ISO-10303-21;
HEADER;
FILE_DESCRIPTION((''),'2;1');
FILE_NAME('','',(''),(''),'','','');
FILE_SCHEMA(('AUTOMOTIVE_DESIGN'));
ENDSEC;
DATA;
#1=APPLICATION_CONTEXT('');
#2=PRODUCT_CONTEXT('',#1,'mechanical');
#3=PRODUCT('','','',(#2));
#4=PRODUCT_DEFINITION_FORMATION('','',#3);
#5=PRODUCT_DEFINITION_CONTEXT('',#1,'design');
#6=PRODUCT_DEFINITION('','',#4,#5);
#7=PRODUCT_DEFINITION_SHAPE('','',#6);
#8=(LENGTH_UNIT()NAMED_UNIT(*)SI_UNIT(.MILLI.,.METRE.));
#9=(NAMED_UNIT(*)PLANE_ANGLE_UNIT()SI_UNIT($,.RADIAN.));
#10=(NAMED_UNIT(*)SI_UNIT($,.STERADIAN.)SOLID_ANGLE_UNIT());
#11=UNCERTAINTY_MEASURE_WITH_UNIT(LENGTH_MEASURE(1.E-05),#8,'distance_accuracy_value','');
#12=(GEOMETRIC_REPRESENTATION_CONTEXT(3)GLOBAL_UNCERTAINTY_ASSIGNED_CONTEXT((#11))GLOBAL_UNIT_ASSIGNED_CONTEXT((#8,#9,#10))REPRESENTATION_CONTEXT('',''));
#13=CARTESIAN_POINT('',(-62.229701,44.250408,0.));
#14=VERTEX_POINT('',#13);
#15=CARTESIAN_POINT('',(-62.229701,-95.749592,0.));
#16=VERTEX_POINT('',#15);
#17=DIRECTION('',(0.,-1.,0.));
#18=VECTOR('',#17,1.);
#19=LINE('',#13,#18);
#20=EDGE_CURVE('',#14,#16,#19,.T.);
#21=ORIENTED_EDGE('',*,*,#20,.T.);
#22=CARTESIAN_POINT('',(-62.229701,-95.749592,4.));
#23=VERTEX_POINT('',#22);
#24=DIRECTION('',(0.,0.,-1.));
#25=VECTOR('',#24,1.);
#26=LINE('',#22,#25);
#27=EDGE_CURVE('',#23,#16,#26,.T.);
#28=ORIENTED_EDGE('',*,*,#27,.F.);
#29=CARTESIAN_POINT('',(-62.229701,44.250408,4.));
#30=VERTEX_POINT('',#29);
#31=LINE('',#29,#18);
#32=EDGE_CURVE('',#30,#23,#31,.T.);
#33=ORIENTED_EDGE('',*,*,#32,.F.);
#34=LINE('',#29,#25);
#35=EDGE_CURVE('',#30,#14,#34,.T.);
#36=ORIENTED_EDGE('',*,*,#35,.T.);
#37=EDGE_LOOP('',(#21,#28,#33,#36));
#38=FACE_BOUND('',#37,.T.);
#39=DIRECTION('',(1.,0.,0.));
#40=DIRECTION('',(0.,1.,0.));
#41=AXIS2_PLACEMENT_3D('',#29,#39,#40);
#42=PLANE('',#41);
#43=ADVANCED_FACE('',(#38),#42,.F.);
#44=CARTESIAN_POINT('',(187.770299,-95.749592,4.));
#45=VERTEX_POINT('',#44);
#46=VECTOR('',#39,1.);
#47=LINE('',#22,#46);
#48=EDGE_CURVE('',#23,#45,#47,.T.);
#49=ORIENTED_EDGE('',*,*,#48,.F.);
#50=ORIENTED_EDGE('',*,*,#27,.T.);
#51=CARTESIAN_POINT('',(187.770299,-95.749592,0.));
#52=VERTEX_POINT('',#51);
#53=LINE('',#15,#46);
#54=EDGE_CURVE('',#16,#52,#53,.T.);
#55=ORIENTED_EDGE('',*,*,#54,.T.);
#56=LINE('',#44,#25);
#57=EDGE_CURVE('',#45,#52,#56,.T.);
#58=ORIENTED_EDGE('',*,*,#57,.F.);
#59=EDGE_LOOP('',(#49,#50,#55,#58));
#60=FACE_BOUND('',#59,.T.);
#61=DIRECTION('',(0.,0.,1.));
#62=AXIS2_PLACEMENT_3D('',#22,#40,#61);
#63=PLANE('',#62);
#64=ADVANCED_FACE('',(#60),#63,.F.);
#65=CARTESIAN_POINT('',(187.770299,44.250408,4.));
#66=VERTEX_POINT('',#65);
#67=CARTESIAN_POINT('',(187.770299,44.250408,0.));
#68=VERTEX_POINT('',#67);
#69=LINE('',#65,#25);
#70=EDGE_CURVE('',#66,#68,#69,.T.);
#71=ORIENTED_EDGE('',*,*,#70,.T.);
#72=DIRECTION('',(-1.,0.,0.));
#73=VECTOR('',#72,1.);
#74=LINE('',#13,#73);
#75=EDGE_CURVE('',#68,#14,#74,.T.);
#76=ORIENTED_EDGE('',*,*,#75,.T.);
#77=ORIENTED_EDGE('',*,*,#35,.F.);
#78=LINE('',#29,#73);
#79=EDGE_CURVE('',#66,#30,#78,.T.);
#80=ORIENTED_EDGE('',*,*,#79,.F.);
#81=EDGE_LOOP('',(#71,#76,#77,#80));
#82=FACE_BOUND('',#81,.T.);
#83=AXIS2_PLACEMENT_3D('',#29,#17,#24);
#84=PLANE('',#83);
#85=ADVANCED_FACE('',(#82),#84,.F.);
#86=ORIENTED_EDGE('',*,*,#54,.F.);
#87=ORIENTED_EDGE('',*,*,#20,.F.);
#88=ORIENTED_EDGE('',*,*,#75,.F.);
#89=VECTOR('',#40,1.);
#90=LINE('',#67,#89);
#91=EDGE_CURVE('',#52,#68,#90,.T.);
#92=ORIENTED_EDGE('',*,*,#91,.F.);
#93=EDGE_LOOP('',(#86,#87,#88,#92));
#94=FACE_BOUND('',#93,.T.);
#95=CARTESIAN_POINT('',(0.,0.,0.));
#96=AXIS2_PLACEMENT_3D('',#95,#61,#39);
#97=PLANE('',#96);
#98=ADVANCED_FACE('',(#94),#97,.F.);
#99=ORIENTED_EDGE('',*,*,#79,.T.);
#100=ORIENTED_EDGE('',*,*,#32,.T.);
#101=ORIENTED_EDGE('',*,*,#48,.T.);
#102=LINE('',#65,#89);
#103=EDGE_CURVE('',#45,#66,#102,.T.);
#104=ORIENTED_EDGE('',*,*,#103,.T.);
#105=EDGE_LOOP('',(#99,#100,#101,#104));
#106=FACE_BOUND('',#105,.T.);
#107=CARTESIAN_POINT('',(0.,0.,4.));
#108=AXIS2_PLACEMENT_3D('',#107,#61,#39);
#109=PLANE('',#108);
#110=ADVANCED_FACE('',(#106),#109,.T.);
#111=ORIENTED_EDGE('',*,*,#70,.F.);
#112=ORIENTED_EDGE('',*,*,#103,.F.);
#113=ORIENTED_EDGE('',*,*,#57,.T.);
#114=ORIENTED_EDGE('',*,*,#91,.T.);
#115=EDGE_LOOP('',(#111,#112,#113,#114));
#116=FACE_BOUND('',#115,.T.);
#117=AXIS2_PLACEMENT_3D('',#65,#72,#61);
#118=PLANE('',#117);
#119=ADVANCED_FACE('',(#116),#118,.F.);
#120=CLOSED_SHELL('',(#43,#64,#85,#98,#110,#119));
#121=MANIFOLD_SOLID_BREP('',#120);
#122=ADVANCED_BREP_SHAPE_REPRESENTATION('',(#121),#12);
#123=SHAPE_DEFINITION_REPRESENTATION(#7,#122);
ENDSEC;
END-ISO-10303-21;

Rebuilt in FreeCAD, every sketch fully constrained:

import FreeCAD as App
import Part
import Sketcher
Q = App.Units.Quantity

doc = App.newDocument("Part")
body = doc.addObject("PartDesign::Body", "Body")

sketch1 = body.newObject("Sketcher::SketchObject", "Sketch")
sketch1.AttachmentSupport = (doc.getObject("XY_Plane"), [""])
sketch1.MapMode = "FlatFace"
sketch1.addGeometry([
    Part.LineSegment(App.Vector(-62.229701, 44.250408, 0), App.Vector(-62.229701, -95.749592, 0)),
    Part.LineSegment(App.Vector(-62.229701, -95.749592, 0), App.Vector(187.770299, -95.749592, 0)),
    Part.LineSegment(App.Vector(187.770299, -95.749592, 0), App.Vector(187.770299, 44.250408, 0)),
    Part.LineSegment(App.Vector(187.770299, 44.250408, 0), App.Vector(-62.229701, 44.250408, 0)),
], False)
sketch1.addConstraint([
    Sketcher.Constraint("Coincident", 0, 2, 1, 1),
    Sketcher.Constraint("Coincident", 1, 2, 2, 1),
    Sketcher.Constraint("Coincident", 2, 2, 3, 1),
    Sketcher.Constraint("Coincident", 3, 2, 0, 1),
    Sketcher.Constraint("Vertical", 0),
    Sketcher.Constraint("Horizontal", 1),
    Sketcher.Constraint("Vertical", 2),
    Sketcher.Constraint("Horizontal", 3),
    Sketcher.Constraint("DistanceX", 1, 1, 1, 2, Q("250 mm")),
    Sketcher.Constraint("DistanceY", 0, 2, 0, 1, Q("140 mm")),
    Sketcher.Constraint("DistanceX", 0, 2, -1, 1, Q("62.229701 mm")),
    Sketcher.Constraint("DistanceY", 0, 2, -1, 1, Q("95.749592 mm")),
])
pad1 = body.newObject("PartDesign::Pad", "Pad")
pad1.Profile = sketch1
pad1.Length = 4

doc.recompute()
